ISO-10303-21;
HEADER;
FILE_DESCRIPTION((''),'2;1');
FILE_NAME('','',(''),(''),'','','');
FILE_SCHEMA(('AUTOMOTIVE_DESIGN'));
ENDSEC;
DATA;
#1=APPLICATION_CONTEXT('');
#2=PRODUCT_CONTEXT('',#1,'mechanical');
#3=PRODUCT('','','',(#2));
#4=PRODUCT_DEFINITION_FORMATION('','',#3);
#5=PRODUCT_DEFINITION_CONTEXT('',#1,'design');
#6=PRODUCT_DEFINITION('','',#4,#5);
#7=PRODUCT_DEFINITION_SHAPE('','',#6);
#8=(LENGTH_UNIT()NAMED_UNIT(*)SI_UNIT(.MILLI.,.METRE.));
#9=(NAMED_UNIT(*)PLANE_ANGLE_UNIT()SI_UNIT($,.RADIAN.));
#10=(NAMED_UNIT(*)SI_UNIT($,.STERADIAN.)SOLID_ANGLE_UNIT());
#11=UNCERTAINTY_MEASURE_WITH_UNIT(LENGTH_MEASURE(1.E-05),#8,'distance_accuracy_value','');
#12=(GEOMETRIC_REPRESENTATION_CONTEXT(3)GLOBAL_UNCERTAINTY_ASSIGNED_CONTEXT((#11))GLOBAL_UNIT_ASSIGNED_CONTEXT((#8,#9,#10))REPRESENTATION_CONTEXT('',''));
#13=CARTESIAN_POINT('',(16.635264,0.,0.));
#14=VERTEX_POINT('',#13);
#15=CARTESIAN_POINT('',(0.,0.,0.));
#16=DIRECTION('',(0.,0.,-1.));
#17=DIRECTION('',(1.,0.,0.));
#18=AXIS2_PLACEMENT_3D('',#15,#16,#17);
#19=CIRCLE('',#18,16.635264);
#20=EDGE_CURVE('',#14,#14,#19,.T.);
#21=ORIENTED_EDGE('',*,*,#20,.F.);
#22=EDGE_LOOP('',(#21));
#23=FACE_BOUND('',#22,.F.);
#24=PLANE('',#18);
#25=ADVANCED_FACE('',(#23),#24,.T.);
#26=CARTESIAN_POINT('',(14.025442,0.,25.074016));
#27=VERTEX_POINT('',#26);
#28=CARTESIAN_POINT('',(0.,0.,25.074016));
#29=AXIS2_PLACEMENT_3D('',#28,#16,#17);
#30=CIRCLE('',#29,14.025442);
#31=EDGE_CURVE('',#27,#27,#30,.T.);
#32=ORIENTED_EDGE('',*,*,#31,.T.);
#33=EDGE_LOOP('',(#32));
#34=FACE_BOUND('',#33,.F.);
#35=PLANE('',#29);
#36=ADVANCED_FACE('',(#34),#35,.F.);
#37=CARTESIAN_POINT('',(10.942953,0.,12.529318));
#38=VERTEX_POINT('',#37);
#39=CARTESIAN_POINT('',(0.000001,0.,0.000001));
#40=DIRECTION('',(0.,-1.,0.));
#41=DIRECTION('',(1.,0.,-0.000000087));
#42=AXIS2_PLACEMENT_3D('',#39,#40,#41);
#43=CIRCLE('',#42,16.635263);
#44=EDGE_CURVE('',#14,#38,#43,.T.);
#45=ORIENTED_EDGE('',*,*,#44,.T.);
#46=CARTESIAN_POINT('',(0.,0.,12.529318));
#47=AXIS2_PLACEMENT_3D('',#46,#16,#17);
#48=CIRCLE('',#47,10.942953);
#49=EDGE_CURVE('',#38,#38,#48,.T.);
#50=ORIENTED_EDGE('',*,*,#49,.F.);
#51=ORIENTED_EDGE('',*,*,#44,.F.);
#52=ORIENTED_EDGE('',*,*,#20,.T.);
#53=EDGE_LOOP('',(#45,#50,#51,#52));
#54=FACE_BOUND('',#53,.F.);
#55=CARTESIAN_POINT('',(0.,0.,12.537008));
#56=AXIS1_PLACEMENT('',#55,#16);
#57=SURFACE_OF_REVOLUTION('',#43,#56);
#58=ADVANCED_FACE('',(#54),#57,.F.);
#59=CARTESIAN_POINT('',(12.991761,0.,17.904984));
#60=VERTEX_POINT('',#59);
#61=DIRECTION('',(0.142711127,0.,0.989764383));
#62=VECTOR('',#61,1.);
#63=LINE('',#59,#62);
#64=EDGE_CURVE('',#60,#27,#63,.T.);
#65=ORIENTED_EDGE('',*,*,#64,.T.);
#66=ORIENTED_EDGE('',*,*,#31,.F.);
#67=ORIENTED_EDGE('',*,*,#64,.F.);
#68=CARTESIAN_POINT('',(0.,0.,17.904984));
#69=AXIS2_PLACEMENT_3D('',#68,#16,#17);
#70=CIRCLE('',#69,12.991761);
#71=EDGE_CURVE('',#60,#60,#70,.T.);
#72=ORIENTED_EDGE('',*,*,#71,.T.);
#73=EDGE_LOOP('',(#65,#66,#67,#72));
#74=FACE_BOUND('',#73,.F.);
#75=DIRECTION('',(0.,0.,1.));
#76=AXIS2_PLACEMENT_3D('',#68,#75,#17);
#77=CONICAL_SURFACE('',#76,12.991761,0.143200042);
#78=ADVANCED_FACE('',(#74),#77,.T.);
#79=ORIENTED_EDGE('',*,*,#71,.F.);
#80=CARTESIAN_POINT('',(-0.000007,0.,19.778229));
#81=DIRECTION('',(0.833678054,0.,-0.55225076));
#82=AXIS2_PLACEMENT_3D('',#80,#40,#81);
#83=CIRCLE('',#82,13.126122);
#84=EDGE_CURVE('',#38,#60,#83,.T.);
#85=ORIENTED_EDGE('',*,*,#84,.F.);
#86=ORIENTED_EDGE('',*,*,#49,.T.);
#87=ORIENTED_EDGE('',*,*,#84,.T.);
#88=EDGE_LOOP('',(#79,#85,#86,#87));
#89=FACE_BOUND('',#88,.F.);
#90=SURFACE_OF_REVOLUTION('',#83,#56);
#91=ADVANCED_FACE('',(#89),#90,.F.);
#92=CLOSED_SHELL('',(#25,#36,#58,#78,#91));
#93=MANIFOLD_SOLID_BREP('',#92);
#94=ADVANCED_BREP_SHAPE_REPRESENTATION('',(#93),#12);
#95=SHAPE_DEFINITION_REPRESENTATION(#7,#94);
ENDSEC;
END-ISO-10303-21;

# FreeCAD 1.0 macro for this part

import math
import FreeCAD as App
import Part
import Sketcher
from FreeCAD import Vector
Q = App.Units.Quantity

doc = App.newDocument("Part")
body = doc.addObject("PartDesign::Body", "Body")

# Sketch on XZ plane
sketch1 = body.newObject("Sketcher::SketchObject", "Sketch")
sketch1.AttachmentSupport = (doc.getObject("XZ_Plane"), [""])
sketch1.MapMode = "FlatFace"
sketch1.addGeometry([
    Part.LineSegment(Vector(0, 0, 0), Vector(17, 0, 0)),  # 0
    Part.ArcOfCircle(Part.Circle(Vector(0, 0, 0), Vector(0, 0, 1), 17), math.radians(0), math.radians(49)),  # 1
    Part.ArcOfCircle(Part.Circle(Vector(0, 20, 0), Vector(0, 0, 1), 13), math.radians(-34), math.radians(-8)),  # 2
    Part.LineSegment(Vector(13, 18, 0), Vector(14, 25, 0)),  # 3
    Part.LineSegment(Vector(14, 25, 0), Vector(0, 25, 0)),  # 4
    Part.LineSegment(Vector(0, 25, 0), Vector(0, 0, 0)),  # 5
], False)
sketch1.addConstraint([
    Sketcher.Constraint("Coincident", 0, 2, 1, 1),
    Sketcher.Constraint("Coincident", 1, 2, 2, 1),
    Sketcher.Constraint("Tangent", 2, 2, 3, 1),
    Sketcher.Constraint("Coincident", 3, 2, 4, 1),
    Sketcher.Constraint("Coincident", 4, 2, 5, 1),
    Sketcher.Constraint("Coincident", 5, 2, 0, 1),
    Sketcher.Constraint("Horizontal", 0),
    Sketcher.Constraint("Horizontal", 4),
    Sketcher.Constraint("Vertical", 5),
    Sketcher.Constraint("Coincident", 1, 3, -1, 1),
    Sketcher.Constraint("Coincident", 5, 2, -1, 1),
    Sketcher.Constraint("Radius", 2, Q("13.126122 mm")),
    Sketcher.Constraint("Radius", 1, Q("16.635263 mm")),
    Sketcher.Constraint("DistanceY", 1, 2, 3, 2, Q("12.544698 mm")),
    Sketcher.Constraint("Distance", 3, Q("7.24317 mm")),
    Sketcher.Constraint("DistanceX", 4, 2, 4, 1, Q("14.025442 mm")),
    Sketcher.Constraint("DistanceY", 5, 2, 5, 1, Q("25.074016 mm")),
])
revolution = body.newObject("PartDesign::Revolution", "Revolution")
revolution.Profile = sketch1
revolution.ReferenceAxis = (sketch1, ["V_Axis"])
revolution.Angle = 360

doc.recompute()
